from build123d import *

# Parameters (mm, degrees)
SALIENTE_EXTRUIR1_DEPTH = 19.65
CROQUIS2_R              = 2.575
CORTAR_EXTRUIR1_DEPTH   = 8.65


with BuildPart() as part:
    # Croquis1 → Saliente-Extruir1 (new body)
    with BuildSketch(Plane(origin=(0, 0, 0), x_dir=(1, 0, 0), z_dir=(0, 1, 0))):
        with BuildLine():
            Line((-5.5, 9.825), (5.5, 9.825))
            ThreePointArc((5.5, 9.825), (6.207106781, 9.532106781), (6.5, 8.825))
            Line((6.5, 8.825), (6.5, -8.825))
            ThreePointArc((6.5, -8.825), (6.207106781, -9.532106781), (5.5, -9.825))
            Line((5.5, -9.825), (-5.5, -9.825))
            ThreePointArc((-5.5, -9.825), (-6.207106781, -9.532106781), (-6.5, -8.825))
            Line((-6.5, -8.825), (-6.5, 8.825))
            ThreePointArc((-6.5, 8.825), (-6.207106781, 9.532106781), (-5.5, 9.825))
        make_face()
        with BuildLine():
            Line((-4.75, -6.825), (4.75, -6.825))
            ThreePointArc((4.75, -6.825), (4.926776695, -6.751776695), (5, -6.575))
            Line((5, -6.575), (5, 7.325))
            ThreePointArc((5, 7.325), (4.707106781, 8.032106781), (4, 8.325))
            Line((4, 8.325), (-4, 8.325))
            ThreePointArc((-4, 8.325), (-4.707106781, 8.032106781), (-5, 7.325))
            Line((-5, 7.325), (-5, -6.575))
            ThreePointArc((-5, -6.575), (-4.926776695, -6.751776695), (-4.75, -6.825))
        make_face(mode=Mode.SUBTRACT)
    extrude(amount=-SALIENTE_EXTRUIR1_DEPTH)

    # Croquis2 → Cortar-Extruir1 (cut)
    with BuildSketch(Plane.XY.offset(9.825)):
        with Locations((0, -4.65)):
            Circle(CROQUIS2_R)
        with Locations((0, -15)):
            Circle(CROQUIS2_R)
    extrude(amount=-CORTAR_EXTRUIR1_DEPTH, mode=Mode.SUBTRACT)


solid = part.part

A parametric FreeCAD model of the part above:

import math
import FreeCAD as App
import Part
import Sketcher

V = App.Vector
Q = App.Units.Quantity

doc = App.newDocument("Part")
body = doc.addObject("PartDesign::Body", "Body")

# Sketch on XZ plane
sketch1 = body.newObject("Sketcher::SketchObject", "Sketch")
sketch1.AttachmentSupport = (doc.getObject("XZ_Plane"), [""])
sketch1.MapMode = "FlatFace"
sketch1.addGeometry(Part.LineSegment(V(5.5, -9.82, 0), V(-5.5, -9.82, 0)), False)
sketch1.addGeometry(Part.ArcOfCircle(Part.Circle(V(-5.5, -8.82, 0), V(0, 0, 1), 1), math.radians(-180), math.radians(-90)), False)
sketch1.addGeometry(Part.LineSegment(V(-6.5, -8.82, 0), V(-6.5, 8.82, 0)), False)
sketch1.addGeometry(Part.ArcOfCircle(Part.Circle(V(-5.5, 8.82, 0), V(0, 0, 1), 1), math.radians(90), math.radians(180)), False)
sketch1.addGeometry(Part.LineSegment(V(-5.5, 9.82, 0), V(5.5, 9.82, 0)), False)
sketch1.addGeometry(Part.ArcOfCircle(Part.Circle(V(5.5, 8.82, 0), V(0, 0, 1), 1), math.radians(0), math.radians(90)), False)
sketch1.addGeometry(Part.LineSegment(V(6.5, 8.82, 0), V(6.5, -8.82, 0)), False)
sketch1.addGeometry(Part.ArcOfCircle(Part.Circle(V(5.5, -8.82, 0), V(0, 0, 1), 1), math.radians(-90), math.radians(0)), False)
sketch1.addGeometry(Part.ArcOfCircle(Part.Circle(V(-4.75, 6.57, 0), V(0, 0, 1), 0.25), math.radians(90), math.radians(180)), False)
sketch1.addGeometry(Part.LineSegment(V(-5, 6.58, 0), V(-5, -7.33, 0)), False)
sketch1.addGeometry(Part.ArcOfCircle(Part.Circle(V(-4, -7.32, 0), V(0, 0, 1), 1), math.radians(-180), math.radians(-90)), False)
sketch1.addGeometry(Part.LineSegment(V(-4, -8.32, 0), V(4, -8.32, 0)), False)
sketch1.addGeometry(Part.ArcOfCircle(Part.Circle(V(4, -7.32, 0), V(0, 0, 1), 1), math.radians(-90), math.radians(0)), False)
sketch1.addGeometry(Part.LineSegment(V(5, -7.33, 0), V(5, 6.58, 0)), False)
sketch1.addGeometry(Part.ArcOfCircle(Part.Circle(V(4.75, 6.57, 0), V(0, 0, 1), 0.25), math.radians(0), math.radians(90)), False)
sketch1.addGeometry(Part.LineSegment(V(4.75, 6.83, 0), V(-4.75, 6.83, 0)), False)
sketch1.addConstraint(Sketcher.Constraint("Tangent", 0, 2, 1, 2))
sketch1.addConstraint(Sketcher.Constraint("Tangent", 1, 1, 2, 1))
sketch1.addConstraint(Sketcher.Constraint("Tangent", 2, 2, 3, 2))
sketch1.addConstraint(Sketcher.Constraint("Tangent", 3, 1, 4, 1))
sketch1.addConstraint(Sketcher.Constraint("Tangent", 4, 2, 5, 2))
sketch1.addConstraint(Sketcher.Constraint("Tangent", 5, 1, 6, 1))
sketch1.addConstraint(Sketcher.Constraint("Tangent", 6, 2, 7, 2))
sketch1.addConstraint(Sketcher.Constraint("Tangent", 7, 1, 0, 1))
sketch1.addConstraint(Sketcher.Constraint("Tangent", 8, 2, 9, 1))
sketch1.addConstraint(Sketcher.Constraint("Tangent", 9, 2, 10, 1))
sketch1.addConstraint(Sketcher.Constraint("Tangent", 10, 2, 11, 1))
sketch1.addConstraint(Sketcher.Constraint("Tangent", 11, 2, 12, 1))
sketch1.addConstraint(Sketcher.Constraint("Tangent", 12, 2, 13, 1))
sketch1.addConstraint(Sketcher.Constraint("Tangent", 13, 2, 14, 1))
sketch1.addConstraint(Sketcher.Constraint("Tangent", 14, 2, 15, 1))
sketch1.addConstraint(Sketcher.Constraint("Tangent", 15, 2, 8, 1))
sketch1.addConstraint(Sketcher.Constraint("Horizontal", 0))
sketch1.addConstraint(Sketcher.Constraint("Vertical", 2))
sketch1.addConstraint(Sketcher.Constraint("Horizontal", 4))
sketch1.addConstraint(Sketcher.Constraint("Vertical", 6))
sketch1.addConstraint(Sketcher.Constraint("Vertical", 9))
sketch1.addConstraint(Sketcher.Constraint("Horizontal", 11))
sketch1.addConstraint(Sketcher.Constraint("Vertical", 13))
sketch1.addConstraint(Sketcher.Constraint("Horizontal", 15))
sketch1.addConstraint(Sketcher.Constraint("Equal", 1, 3))
sketch1.addConstraint(Sketcher.Constraint("Equal", 3, 5))
sketch1.addConstraint(Sketcher.Constraint("Equal", 5, 7))
sketch1.addConstraint(Sketcher.Constraint("Equal", 7, 10))
sketch1.addConstraint(Sketcher.Constraint("Equal", 10, 12))
sketch1.addConstraint(Sketcher.Constraint("Equal", 8, 14))
sketch1.addConstraint(Sketcher.Constraint("Symmetric", 1, 3, 5, 3, -1, 1))
sketch1.addConstraint(Sketcher.Constraint("Radius", 1, Q("1 mm")))
sketch1.addConstraint(Sketcher.Constraint("DistanceX", 0, 2, 0, 1, Q("11 mm")))
sketch1.addConstraint(Sketcher.Constraint("DistanceX", 11, 1, 11, 2, Q("8 mm")))
sketch1.addConstraint(Sketcher.Constraint("Radius", 8, Q("0.25 mm")))
sketch1.addConstraint(Sketcher.Constraint("DistanceY", 9, 2, 9, 1, Q("13.9 mm")))
sketch1.addConstraint(Sketcher.Constraint("DistanceX", 10, 3, -1, 1, Q("4 mm")))
sketch1.addConstraint(Sketcher.Constraint("DistanceY", 14, 2, 5, 3, Q("2 mm")))
sketch1.addConstraint(Sketcher.Constraint("DistanceY", 2, 1, 2, 2, Q("17.65 mm")))
pad1 = body.newObject("PartDesign::Pad", "Pad")
pad1.Profile = sketch1
pad1.Length = 19.65

# Sketch on XY plane
sketch2 = body.newObject("Sketcher::SketchObject", "Sketch001")
sketch2.AttachmentSupport = (doc.getObject("XY_Plane"), [""])
sketch2.MapMode = "FlatFace"
sketch2.AttachmentOffset = App.Placement(V(0, 0, 9.825), App.Rotation())
sketch2.addGeometry(Part.Circle(V(0, -4.7, 0), V(0, 0, 1), 2.6), False)
sketch2.addGeometry(Part.Circle(V(0, -15, 0), V(0, 0, 1), 2.6), False)
sketch2.addConstraint(Sketcher.Constraint("Equal", 0, 1))
sketch2.addConstraint(Sketcher.Constraint("PointOnObject", 0, 3, -2))
sketch2.addConstraint(Sketcher.Constraint("PointOnObject", 1, 3, -2))
sketch2.addConstraint(Sketcher.Constraint("Diameter", 0, Q("5.15 mm")))
sketch2.addConstraint(Sketcher.Constraint("DistanceY", 1, 3, -1, 1, Q("15 mm")))
sketch2.addConstraint(Sketcher.Constraint("DistanceY", 0, 3, -1, 1, Q("4.65 mm")))
pocket1 = body.newObject("PartDesign::Pocket", "Pocket")
pocket1.Profile = sketch2
pocket1.Length = 8.65

doc.recompute()
